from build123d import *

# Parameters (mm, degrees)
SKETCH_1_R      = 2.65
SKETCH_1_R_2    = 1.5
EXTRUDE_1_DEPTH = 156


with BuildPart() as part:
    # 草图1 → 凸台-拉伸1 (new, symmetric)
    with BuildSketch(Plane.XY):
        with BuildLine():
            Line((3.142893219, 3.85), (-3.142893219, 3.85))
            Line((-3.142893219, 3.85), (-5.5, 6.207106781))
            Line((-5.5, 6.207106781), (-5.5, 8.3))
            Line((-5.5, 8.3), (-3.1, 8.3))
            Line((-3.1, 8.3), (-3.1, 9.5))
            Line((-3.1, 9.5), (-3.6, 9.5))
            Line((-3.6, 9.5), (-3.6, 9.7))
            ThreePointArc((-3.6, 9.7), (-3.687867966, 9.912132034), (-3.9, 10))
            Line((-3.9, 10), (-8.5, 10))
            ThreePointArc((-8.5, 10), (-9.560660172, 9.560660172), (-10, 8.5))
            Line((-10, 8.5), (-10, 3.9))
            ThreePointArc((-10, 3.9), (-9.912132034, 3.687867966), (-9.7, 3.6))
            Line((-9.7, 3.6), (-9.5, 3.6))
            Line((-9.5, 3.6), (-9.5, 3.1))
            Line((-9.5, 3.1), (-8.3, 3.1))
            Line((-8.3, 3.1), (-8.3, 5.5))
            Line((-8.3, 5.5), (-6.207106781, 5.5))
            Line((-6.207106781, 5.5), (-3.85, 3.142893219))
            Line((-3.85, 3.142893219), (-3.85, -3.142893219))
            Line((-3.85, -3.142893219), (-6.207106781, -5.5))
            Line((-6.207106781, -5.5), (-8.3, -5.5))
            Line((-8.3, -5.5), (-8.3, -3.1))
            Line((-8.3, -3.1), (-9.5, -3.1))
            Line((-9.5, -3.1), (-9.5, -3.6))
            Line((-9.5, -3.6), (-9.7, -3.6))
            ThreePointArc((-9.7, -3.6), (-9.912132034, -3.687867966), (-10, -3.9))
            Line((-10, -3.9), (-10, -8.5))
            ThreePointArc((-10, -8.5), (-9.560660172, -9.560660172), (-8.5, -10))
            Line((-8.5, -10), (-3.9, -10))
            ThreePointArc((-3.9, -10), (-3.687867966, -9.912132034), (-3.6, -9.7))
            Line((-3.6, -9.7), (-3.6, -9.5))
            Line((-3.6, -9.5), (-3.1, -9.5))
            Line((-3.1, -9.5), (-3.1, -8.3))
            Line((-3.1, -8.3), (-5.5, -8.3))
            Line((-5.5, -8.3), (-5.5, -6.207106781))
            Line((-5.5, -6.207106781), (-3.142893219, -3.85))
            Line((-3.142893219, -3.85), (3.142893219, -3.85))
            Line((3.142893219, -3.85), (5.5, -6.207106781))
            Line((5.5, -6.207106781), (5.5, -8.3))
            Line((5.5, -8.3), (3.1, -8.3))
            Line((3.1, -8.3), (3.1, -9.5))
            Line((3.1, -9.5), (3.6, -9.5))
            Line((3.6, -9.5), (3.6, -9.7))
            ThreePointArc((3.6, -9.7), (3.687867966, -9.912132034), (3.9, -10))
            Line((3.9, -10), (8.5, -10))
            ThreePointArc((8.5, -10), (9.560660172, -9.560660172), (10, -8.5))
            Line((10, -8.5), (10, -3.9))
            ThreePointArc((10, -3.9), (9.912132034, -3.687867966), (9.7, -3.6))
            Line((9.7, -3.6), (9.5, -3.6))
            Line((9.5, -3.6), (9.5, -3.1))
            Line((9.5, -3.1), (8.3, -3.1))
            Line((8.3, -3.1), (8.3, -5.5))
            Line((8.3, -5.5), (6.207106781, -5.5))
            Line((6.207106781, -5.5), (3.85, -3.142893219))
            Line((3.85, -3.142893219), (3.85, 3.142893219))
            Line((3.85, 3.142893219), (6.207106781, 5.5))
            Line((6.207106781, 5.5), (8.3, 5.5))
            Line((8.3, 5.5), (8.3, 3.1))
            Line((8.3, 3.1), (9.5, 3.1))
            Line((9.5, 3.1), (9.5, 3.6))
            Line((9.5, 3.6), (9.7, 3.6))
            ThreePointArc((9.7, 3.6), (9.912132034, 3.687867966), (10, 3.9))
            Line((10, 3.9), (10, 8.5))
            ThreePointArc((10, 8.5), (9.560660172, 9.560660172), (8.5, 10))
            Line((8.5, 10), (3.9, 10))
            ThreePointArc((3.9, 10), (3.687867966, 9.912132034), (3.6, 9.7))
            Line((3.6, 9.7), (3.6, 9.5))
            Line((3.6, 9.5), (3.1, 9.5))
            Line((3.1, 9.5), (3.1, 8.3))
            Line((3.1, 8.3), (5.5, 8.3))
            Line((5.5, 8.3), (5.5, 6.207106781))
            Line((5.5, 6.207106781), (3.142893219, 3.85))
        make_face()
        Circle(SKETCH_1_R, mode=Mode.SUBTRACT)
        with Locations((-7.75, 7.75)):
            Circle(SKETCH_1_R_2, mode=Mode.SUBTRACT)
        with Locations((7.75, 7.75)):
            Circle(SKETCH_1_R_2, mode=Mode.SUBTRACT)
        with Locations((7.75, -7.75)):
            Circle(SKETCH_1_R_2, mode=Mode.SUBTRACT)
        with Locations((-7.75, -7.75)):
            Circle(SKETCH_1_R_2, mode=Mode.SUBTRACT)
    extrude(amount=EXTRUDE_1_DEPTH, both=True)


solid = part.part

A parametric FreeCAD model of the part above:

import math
import FreeCAD as App
import Part
import Sketcher

doc = App.newDocument("Part")
params = doc.addObject("Spreadsheet::Sheet", "Params")
for row, (alias, value) in enumerate([
    ("sketch1_diameter", "3 mm"),
    ("sketch1_diameter2", "5.3 mm"),
    ("sketch1_radius", "0.3 mm"),
    ("sketch1_width", "2.4 mm"),
    ("sketch1_width2", "0.5 mm"),
    ("pad1_length", "312 mm"),
], start=1):
    params.set(f"A{row}", alias)
    params.set(f"B{row}", "=" + value)
    params.setAlias(f"B{row}", alias)

body = doc.addObject("PartDesign::Body", "Body")

# Sketch on XY plane
sketch1 = doc.addObject("Sketcher::SketchObject", "Sketch")
body.addObject(sketch1)
sketch1.AttachmentSupport = (doc.XY_Plane, [""])
sketch1.MapMode = "FlatFace"
sketch1.addGeometry([
    Part.LineSegment(App.Vector(3.142893, 3.85, 0), App.Vector(-3.142893, 3.85, 0)),  # 0
    Part.LineSegment(App.Vector(-3.142893, 3.85, 0), App.Vector(-5.5, 6.207107, 0)),  # 1
    Part.LineSegment(App.Vector(-5.5, 6.207107, 0), App.Vector(-5.5, 8.3, 0)),  # 2
    Part.LineSegment(App.Vector(-5.5, 8.3, 0), App.Vector(-3.1, 8.3, 0)),  # 3
    Part.LineSegment(App.Vector(-3.1, 8.3, 0), App.Vector(-3.1, 9.5, 0)),  # 4
    Part.LineSegment(App.Vector(-3.1, 9.5, 0), App.Vector(-3.6, 9.5, 0)),  # 5
    Part.LineSegment(App.Vector(-3.6, 9.5, 0), App.Vector(-3.6, 9.7, 0)),  # 6
    Part.ArcOfCircle(Part.Circle(App.Vector(-3.9, 9.7, 0), App.Vector(0, 0, 1), 0.3), math.radians(0), math.radians(90)),  # 7
    Part.LineSegment(App.Vector(-3.9, 10, 0), App.Vector(-8.5, 10, 0)),  # 8
    Part.ArcOfCircle(Part.Circle(App.Vector(-8.5, 8.5, 0), App.Vector(0, 0, 1), 1.5), math.radians(90), math.radians(180)),  # 9
    Part.LineSegment(App.Vector(-10, 8.5, 0), App.Vector(-10, 3.9, 0)),  # 10
    Part.ArcOfCircle(Part.Circle(App.Vector(-9.7, 3.9, 0), App.Vector(0, 0, 1), 0.3), math.radians(-180), math.radians(-90)),  # 11
    Part.LineSegment(App.Vector(-9.7, 3.6, 0), App.Vector(-9.5, 3.6, 0)),  # 12
    Part.LineSegment(App.Vector(-9.5, 3.6, 0), App.Vector(-9.5, 3.1, 0)),  # 13
    Part.LineSegment(App.Vector(-9.5, 3.1, 0), App.Vector(-8.3, 3.1, 0)),  # 14
    Part.LineSegment(App.Vector(-8.3, 3.1, 0), App.Vector(-8.3, 5.5, 0)),  # 15
    Part.LineSegment(App.Vector(-8.3, 5.5, 0), App.Vector(-6.207107, 5.5, 0)),  # 16
    Part.LineSegment(App.Vector(-6.207107, 5.5, 0), App.Vector(-3.85, 3.142893, 0)),  # 17
    Part.LineSegment(App.Vector(-3.85, 3.142893, 0), App.Vector(-3.85, -3.142893, 0)),  # 18
    Part.LineSegment(App.Vector(-3.85, -3.142893, 0), App.Vector(-6.207107, -5.5, 0)),  # 19
    Part.LineSegment(App.Vector(-6.207107, -5.5, 0), App.Vector(-8.3, -5.5, 0)),  # 20
    Part.LineSegment(App.Vector(-8.3, -5.5, 0), App.Vector(-8.3, -3.1, 0)),  # 21
    Part.LineSegment(App.Vector(-8.3, -3.1, 0), App.Vector(-9.5, -3.1, 0)),  # 22
    Part.LineSegment(App.Vector(-9.5, -3.1, 0), App.Vector(-9.5, -3.6, 0)),  # 23
    Part.LineSegment(App.Vector(-9.5, -3.6, 0), App.Vector(-9.7, -3.6, 0)),  # 24
    Part.ArcOfCircle(Part.Circle(App.Vector(-9.7, -3.9, 0), App.Vector(0, 0, 1), 0.3), math.radians(90), math.radians(180)),  # 25
    Part.LineSegment(App.Vector(-10, -3.9, 0), App.Vector(-10, -8.5, 0)),  # 26
    Part.ArcOfCircle(Part.Circle(App.Vector(-8.5, -8.5, 0), App.Vector(0, 0, 1), 1.5), math.radians(180), math.radians(270)),  # 27
    Part.LineSegment(App.Vector(-8.5, -10, 0), App.Vector(-3.9, -10, 0)),  # 28
    Part.ArcOfCircle(Part.Circle(App.Vector(-3.9, -9.7, 0), App.Vector(0, 0, 1), 0.3), math.radians(-90), math.radians(0)),  # 29
    Part.LineSegment(App.Vector(-3.6, -9.7, 0), App.Vector(-3.6, -9.5, 0)),  # 30
    Part.LineSegment(App.Vector(-3.6, -9.5, 0), App.Vector(-3.1, -9.5, 0)),  # 31
    Part.LineSegment(App.Vector(-3.1, -9.5, 0), App.Vector(-3.1, -8.3, 0)),  # 32
    Part.LineSegment(App.Vector(-3.1, -8.3, 0), App.Vector(-5.5, -8.3, 0)),  # 33
    Part.LineSegment(App.Vector(-5.5, -8.3, 0), App.Vector(-5.5, -6.207107, 0)),  # 34
    Part.LineSegment(App.Vector(-5.5, -6.207107, 0), App.Vector(-3.142893, -3.85, 0)),  # 35
    Part.LineSegment(App.Vector(-3.142893, -3.85, 0), App.Vector(3.142893, -3.85, 0)),  # 36
    Part.LineSegment(App.Vector(3.142893, -3.85, 0), App.Vector(5.5, -6.207107, 0)),  # 37
    Part.LineSegment(App.Vector(5.5, -6.207107, 0), App.Vector(5.5, -8.3, 0)),  # 38
    Part.LineSegment(App.Vector(5.5, -8.3, 0), App.Vector(3.1, -8.3, 0)),  # 39
    Part.LineSegment(App.Vector(3.1, -8.3, 0), App.Vector(3.1, -9.5, 0)),  # 40
    Part.LineSegment(App.Vector(3.1, -9.5, 0), App.Vector(3.6, -9.5, 0)),  # 41
    Part.LineSegment(App.Vector(3.6, -9.5, 0), App.Vector(3.6, -9.7, 0)),  # 42
    Part.ArcOfCircle(Part.Circle(App.Vector(3.9, -9.7, 0), App.Vector(0, 0, 1), 0.3), math.radians(-180), math.radians(-90)),  # 43
    Part.LineSegment(App.Vector(3.9, -10, 0), App.Vector(8.5, -10, 0)),  # 44
    Part.ArcOfCircle(Part.Circle(App.Vector(8.5, -8.5, 0), App.Vector(0, 0, 1), 1.5), math.radians(-90), math.radians(0)),  # 45
    Part.LineSegment(App.Vector(10, -8.5, 0), App.Vector(10, -3.9, 0)),  # 46
    Part.ArcOfCircle(Part.Circle(App.Vector(9.7, -3.9, 0), App.Vector(0, 0, 1), 0.3), math.radians(0), math.radians(90)),  # 47
    Part.LineSegment(App.Vector(9.7, -3.6, 0), App.Vector(9.5, -3.6, 0)),  # 48
    Part.LineSegment(App.Vector(9.5, -3.6, 0), App.Vector(9.5, -3.1, 0)),  # 49
    Part.LineSegment(App.Vector(9.5, -3.1, 0), App.Vector(8.3, -3.1, 0)),  # 50
    Part.LineSegment(App.Vector(8.3, -3.1, 0), App.Vector(8.3, -5.5, 0)),  # 51
    Part.LineSegment(App.Vector(8.3, -5.5, 0), App.Vector(6.207107, -5.5, 0)),  # 52
    Part.LineSegment(App.Vector(6.207107, -5.5, 0), App.Vector(3.85, -3.142893, 0)),  # 53
    Part.LineSegment(App.Vector(3.85, -3.142893, 0), App.Vector(3.85, 3.142893, 0)),  # 54
    Part.LineSegment(App.Vector(3.85, 3.142893, 0), App.Vector(6.207107, 5.5, 0)),  # 55
    Part.LineSegment(App.Vector(6.207107, 5.5, 0), App.Vector(8.3, 5.5, 0)),  # 56
    Part.LineSegment(App.Vector(8.3, 5.5, 0), App.Vector(8.3, 3.1, 0)),  # 57
    Part.LineSegment(App.Vector(8.3, 3.1, 0), App.Vector(9.5, 3.1, 0)),  # 58
    Part.LineSegment(App.Vector(9.5, 3.1, 0), App.Vector(9.5, 3.6, 0)),  # 59
    Part.LineSegment(App.Vector(9.5, 3.6, 0), App.Vector(9.7, 3.6, 0)),  # 60
    Part.ArcOfCircle(Part.Circle(App.Vector(9.7, 3.9, 0), App.Vector(0, 0, 1), 0.3), math.radians(-90), math.radians(0)),  # 61
    Part.LineSegment(App.Vector(10, 3.9, 0), App.Vector(10, 8.5, 0)),  # 62
    Part.ArcOfCircle(Part.Circle(App.Vector(8.5, 8.5, 0), App.Vector(0, 0, 1), 1.5), math.radians(0), math.radians(90)),  # 63
    Part.LineSegment(App.Vector(8.5, 10, 0), App.Vector(3.9, 10, 0)),  # 64
    Part.ArcOfCircle(Part.Circle(App.Vector(3.9, 9.7, 0), App.Vector(0, 0, 1), 0.3), math.radians(90), math.radians(180)),  # 65
    Part.LineSegment(App.Vector(3.6, 9.7, 0), App.Vector(3.6, 9.5, 0)),  # 66
    Part.LineSegment(App.Vector(3.6, 9.5, 0), App.Vector(3.1, 9.5, 0)),  # 67
    Part.LineSegment(App.Vector(3.1, 9.5, 0), App.Vector(3.1, 8.3, 0)),  # 68
    Part.LineSegment(App.Vector(3.1, 8.3, 0), App.Vector(5.5, 8.3, 0)),  # 69
    Part.LineSegment(App.Vector(5.5, 8.3, 0), App.Vector(5.5, 6.207107, 0)),  # 70
    Part.LineSegment(App.Vector(5.5, 6.207107, 0), App.Vector(3.142893, 3.85, 0)),  # 71
    Part.Circle(App.Vector(-7.75, -7.75, 0), App.Vector(0, 0, 1), 1.5),  # 72
    Part.Circle(App.Vector(7.75, -7.75, 0), App.Vector(0, 0, 1), 1.5),  # 73
    Part.Circle(App.Vector(-7.75, 7.75, 0), App.Vector(0, 0, 1), 1.5),  # 74
    Part.Circle(App.Vector(0, 0, 0), App.Vector(0, 0, 1), 2.65),  # 75
    Part.Circle(App.Vector(7.75, 7.75, 0), App.Vector(0, 0, 1), 1.5),  # 76
], False)
sketch1.addConstraint([
    Sketcher.Constraint("Coincident", 0, 2, 1, 1),
    Sketcher.Constraint("Coincident", 1, 2, 2, 1),
    Sketcher.Constraint("Coincident", 2, 2, 3, 1),
    Sketcher.Constraint("Coincident", 3, 2, 4, 1),
    Sketcher.Constraint("Coincident", 4, 2, 5, 1),
    Sketcher.Constraint("Coincident", 5, 2, 6, 1),
    Sketcher.Constraint("Tangent", 6, 2, 7, 1),
    Sketcher.Constraint("Tangent", 7, 2, 8, 1),
    Sketcher.Constraint("Tangent", 8, 2, 9, 1),
    Sketcher.Constraint("Tangent", 9, 2, 10, 1),
    Sketcher.Constraint("Tangent", 10, 2, 11, 1),
    Sketcher.Constraint("Tangent", 11, 2, 12, 1),
    Sketcher.Constraint("Coincident", 12, 2, 13, 1),
    Sketcher.Constraint("Coincident", 13, 2, 14, 1),
    Sketcher.Constraint("Coincident", 14, 2, 15, 1),
    Sketcher.Constraint("Coincident", 15, 2, 16, 1),
    Sketcher.Constraint("Coincident", 16, 2, 17, 1),
    Sketcher.Constraint("Coincident", 17, 2, 18, 1),
    Sketcher.Constraint("Coincident", 18, 2, 19, 1),
    Sketcher.Constraint("Coincident", 19, 2, 20, 1),
    Sketcher.Constraint("Coincident", 20, 2, 21, 1),
    Sketcher.Constraint("Coincident", 21, 2, 22, 1),
    Sketcher.Constraint("Coincident", 22, 2, 23, 1),
    Sketcher.Constraint("Coincident", 23, 2, 24, 1),
    Sketcher.Constraint("Tangent", 24, 2, 25, 1),
    Sketcher.Constraint("Tangent", 25, 2, 26, 1),
    Sketcher.Constraint("Tangent", 26, 2, 27, 1),
    Sketcher.Constraint("Tangent", 27, 2, 28, 1),
    Sketcher.Constraint("Tangent", 28, 2, 29, 1),
    Sketcher.Constraint("Tangent", 29, 2, 30, 1),
    Sketcher.Constraint("Coincident", 30, 2, 31, 1),
    Sketcher.Constraint("Coincident", 31, 2, 32, 1),
    Sketcher.Constraint("Coincident", 32, 2, 33, 1),
    Sketcher.Constraint("Coincident", 33, 2, 34, 1),
    Sketcher.Constraint("Coincident", 34, 2, 35, 1),
    Sketcher.Constraint("Coincident", 35, 2, 36, 1),
    Sketcher.Constraint("Coincident", 36, 2, 37, 1),
    Sketcher.Constraint("Coincident", 37, 2, 38, 1),
    Sketcher.Constraint("Coincident", 38, 2, 39, 1),
    Sketcher.Constraint("Coincident", 39, 2, 40, 1),
    Sketcher.Constraint("Coincident", 40, 2, 41, 1),
    Sketcher.Constraint("Coincident", 41, 2, 42, 1),
    Sketcher.Constraint("Tangent", 42, 2, 43, 1),
    Sketcher.Constraint("Tangent", 43, 2, 44, 1),
    Sketcher.Constraint("Tangent", 44, 2, 45, 1),
    Sketcher.Constraint("Tangent", 45, 2, 46, 1),
    Sketcher.Constraint("Tangent", 46, 2, 47, 1),
    Sketcher.Constraint("Tangent", 47, 2, 48, 1),
    Sketcher.Constraint("Coincident", 48, 2, 49, 1),
    Sketcher.Constraint("Coincident", 49, 2, 50, 1),
    Sketcher.Constraint("Coincident", 50, 2, 51, 1),
    Sketcher.Constraint("Coincident", 51, 2, 52, 1),
    Sketcher.Constraint("Coincident", 52, 2, 53, 1),
    Sketcher.Constraint("Coincident", 53, 2, 54, 1),
    Sketcher.Constraint("Coincident", 54, 2, 55, 1),
    Sketcher.Constraint("Coincident", 55, 2, 56, 1),
    Sketcher.Constraint("Coincident", 56, 2, 57, 1),
    Sketcher.Constraint("Coincident", 57, 2, 58, 1),
    Sketcher.Constraint("Coincident", 58, 2, 59, 1),
    Sketcher.Constraint("Coincident", 59, 2, 60, 1),
    Sketcher.Constraint("Tangent", 60, 2, 61, 1),
    Sketcher.Constraint("Tangent", 61, 2, 62, 1),
    Sketcher.Constraint("Tangent", 62, 2, 63, 1),
    Sketcher.Constraint("Tangent", 63, 2, 64, 1),
    Sketcher.Constraint("Tangent", 64, 2, 65, 1),
    Sketcher.Constraint("Tangent", 65, 2, 66, 1),
    Sketcher.Constraint("Coincident", 66, 2, 67, 1),
    Sketcher.Constraint("Coincident", 67, 2, 68, 1),
    Sketcher.Constraint("Coincident", 68, 2, 69, 1),
    Sketcher.Constraint("Coincident", 69, 2, 70, 1),
    Sketcher.Constraint("Coincident", 70, 2, 71, 1),
    Sketcher.Constraint("Coincident", 71, 2, 0, 1),
    Sketcher.Constraint("Horizontal", 0),
    Sketcher.Constraint("Vertical", 2),
    Sketcher.Constraint("Horizontal", 3),
    Sketcher.Constraint("Vertical", 4),
    Sketcher.Constraint("Horizontal", 5),
    Sketcher.Constraint("Vertical", 6),
    Sketcher.Constraint("Horizontal", 8),
    Sketcher.Constraint("Vertical", 10),
    Sketcher.Constraint("Horizontal", 12),
    Sketcher.Constraint("Vertical", 13),
    Sketcher.Constraint("Horizontal", 14),
    Sketcher.Constraint("Vertical", 15),
    Sketcher.Constraint("Horizontal", 16),
    Sketcher.Constraint("Vertical", 18),
    Sketcher.Constraint("Horizontal", 20),
    Sketcher.Constraint("Vertical", 21),
    Sketcher.Constraint("Horizontal", 22),
    Sketcher.Constraint("Vertical", 23),
    Sketcher.Constraint("Horizontal", 24),
    Sketcher.Constraint("Vertical", 26),
    Sketcher.Constraint("Horizontal", 28),
    Sketcher.Constraint("Vertical", 30),
    Sketcher.Constraint("Horizontal", 31),
    Sketcher.Constraint("Vertical", 32),
    Sketcher.Constraint("Horizontal", 33),
    Sketcher.Constraint("Vertical", 34),
    Sketcher.Constraint("Horizontal", 36),
    Sketcher.Constraint("Vertical", 38),
    Sketcher.Constraint("Horizontal", 39),
    Sketcher.Constraint("Vertical", 40),
    Sketcher.Constraint("Horizontal", 41),
    Sketcher.Constraint("Vertical", 42),
    Sketcher.Constraint("Horizontal", 44),
    Sketcher.Constraint("Vertical", 46),
    Sketcher.Constraint("Horizontal", 48),
    Sketcher.Constraint("Vertical", 49),
    Sketcher.Constraint("Horizontal", 50),
    Sketcher.Constraint("Vertical", 51),
    Sketcher.Constraint("Horizontal", 52),
    Sketcher.Constraint("Vertical", 54),
    Sketcher.Constraint("Horizontal", 56),
    Sketcher.Constraint("Vertical", 57),
    Sketcher.Constraint("Horizontal", 58),
    Sketcher.Constraint("Vertical", 59),
    Sketcher.Constraint("Horizontal", 60),
    Sketcher.Constraint("Vertical", 62),
    Sketcher.Constraint("Horizontal", 64),
    Sketcher.Constraint("Vertical", 66),
    Sketcher.Constraint("Horizontal", 67),
    Sketcher.Constraint("Vertical", 68),
    Sketcher.Constraint("Horizontal", 69),
    Sketcher.Constraint("Vertical", 70),
    Sketcher.Constraint("Coincident", 75, 3, -1, 1),
    Sketcher.Constraint("Equal", 7, 11),
    Sketcher.Constraint("Equal", 11, 25),
    Sketcher.Constraint("Equal", 9, 27),
    Sketcher.Constraint("Equal", 25, 29),
    Sketcher.Constraint("Equal", 29, 43),
    Sketcher.Constraint("Equal", 27, 45),
    Sketcher.Constraint("Equal", 43, 47),
    Sketcher.Constraint("Equal", 47, 61),
    Sketcher.Constraint("Equal", 45, 63),
    Sketcher.Constraint("Equal", 61, 65),
    Sketcher.Constraint("Equal", 63, 72),
    Sketcher.Constraint("Equal", 72, 73),
    Sketcher.Constraint("Equal", 73, 74),
    Sketcher.Constraint("Equal", 74, 76),
    Sketcher.Constraint("Symmetric", 7, 3, 43, 3, -1, 1),
    Sketcher.Constraint("Symmetric", 11, 3, 47, 3, -1, 1),
    Sketcher.Constraint("Symmetric", 25, 3, 61, 3, -1, 1),
    Sketcher.Constraint("Symmetric", 29, 3, 65, 3, -1, 1),
    Sketcher.Constraint("Symmetric", 73, 3, 74, 3, -1, 1),
    Sketcher.Constraint("Symmetric", 72, 3, 76, 3, -1, 1),
    Sketcher.Constraint("Symmetric", 0, 2, 36, 2, -1, 1),
    Sketcher.Constraint("Symmetric", 1, 2, 37, 2, -1, 1),
    Sketcher.Constraint("Symmetric", 3, 2, 39, 2, -1, 1),
    Sketcher.Constraint("Symmetric", 13, 2, 49, 2, -1, 1),
    Sketcher.Constraint("Symmetric", 15, 2, 51, 2, -1, 1),
    Sketcher.Constraint("Symmetric", 17, 2, 53, 2, -1, 1),
    Sketcher.Constraint("Symmetric", 19, 2, 55, 2, -1, 1),
    Sketcher.Constraint("Symmetric", 21, 2, 57, 2, -1, 1),
    Sketcher.Constraint("Symmetric", 31, 2, 67, 2, -1, 1),
    Sketcher.Constraint("Symmetric", 33, 2, 69, 2, -1, 1),
    Sketcher.Constraint("Symmetric", 29, 3, 43, 3, -2),
    Sketcher.Constraint("Symmetric", 25, 3, 47, 3, -2),
    Sketcher.Constraint("Symmetric", 72, 3, 73, 3, -2),
    Sketcher.Constraint("Symmetric", 34, 2, 37, 2, -2),
    Sketcher.Constraint("Symmetric", 32, 2, 39, 2, -2),
    Sketcher.Constraint("Symmetric", 22, 2, 49, 2, -2),
    Sketcher.Constraint("Symmetric", 20, 2, 51, 2, -2),
    Sketcher.Constraint("Parallel", 1, 17),
    Sketcher.Constraint("Perpendicular", 17, 19),
    Sketcher.Constraint("Parallel", 19, 35),
    Sketcher.Constraint("Parallel", 37, 53),
    Sketcher.Constraint("Perpendicular", 53, 55),
    Sketcher.Constraint("Parallel", 55, 71),
    Sketcher.Constraint("Horizontal", 31, 2, 40, 2),
    Sketcher.Constraint("Horizontal", 18, 2, 53, 2),
    Sketcher.Constraint("Horizontal", 5, 2, 66, 2),
    Sketcher.Constraint("Horizontal", 1, 2, 70, 2),
    Sketcher.Constraint("Vertical", 16, 2, 19, 2),
    Sketcher.Constraint("Vertical", 49, 2, 58, 2),
    Sketcher.Constraint("Equal", 56, 2),
    Sketcher.Constraint("Equal", 58, 4),
    Sketcher.Constraint("Equal", 60, 6),
    Sketcher.Constraint("Equal", 64, 10),
    Sketcher.Constraint("Equal", 67, 13),
    Sketcher.Constraint("Equal", 69, 15),
    Sketcher.Constraint("Equal", 36, 18),
    Sketcher.Constraint("Equal", 1, 17),
    Sketcher.Constraint("Diameter", 72, 3.0),
    Sketcher.Constraint("Diameter", 75, 5.3),
    Sketcher.Constraint("Radius", 7, 0.3),
    Sketcher.Constraint("DistanceX", 3, 1, 3, 2, 2.4),
    Sketcher.Constraint("DistanceX", 5, 2, 5, 1, 0.5),
    Sketcher.Constraint("DistanceX", 8, 2, 8, 1, 4.6),
    Sketcher.Constraint("DistanceX", 12, 1, 12, 2, 0.2),
    Sketcher.Constraint("DistanceX", 14, 1, 14, 2, 1.2),
    Sketcher.Constraint("DistanceY", -1, 1, 7, 2, 10.0),
    Sketcher.Constraint("DistanceX", 72, 3, -1, 1, 7.75),
    Sketcher.Constraint("DistanceY", 72, 3, -1, 1, 7.75),
    Sketcher.Constraint("DistanceY", -1, 1, 0, 2, 3.85),
    Sketcher.Constraint("DistanceX", 0, 2, 0, 1, 6.285786),
])
sketch1.setExpression("Constraints[182]", "Params.sketch1_diameter")
sketch1.setExpression("Constraints[183]", "Params.sketch1_diameter2")
sketch1.setExpression("Constraints[184]", "Params.sketch1_radius")
sketch1.setExpression("Constraints[185]", "Params.sketch1_width")
sketch1.setExpression("Constraints[186]", "Params.sketch1_width2")
pad1 = doc.addObject("PartDesign::Pad", "Pad")
body.addObject(pad1)
pad1.Profile = sketch1
pad1.setExpression("Length", "Params.pad1_length")
pad1.Midplane = True

doc.recompute()
